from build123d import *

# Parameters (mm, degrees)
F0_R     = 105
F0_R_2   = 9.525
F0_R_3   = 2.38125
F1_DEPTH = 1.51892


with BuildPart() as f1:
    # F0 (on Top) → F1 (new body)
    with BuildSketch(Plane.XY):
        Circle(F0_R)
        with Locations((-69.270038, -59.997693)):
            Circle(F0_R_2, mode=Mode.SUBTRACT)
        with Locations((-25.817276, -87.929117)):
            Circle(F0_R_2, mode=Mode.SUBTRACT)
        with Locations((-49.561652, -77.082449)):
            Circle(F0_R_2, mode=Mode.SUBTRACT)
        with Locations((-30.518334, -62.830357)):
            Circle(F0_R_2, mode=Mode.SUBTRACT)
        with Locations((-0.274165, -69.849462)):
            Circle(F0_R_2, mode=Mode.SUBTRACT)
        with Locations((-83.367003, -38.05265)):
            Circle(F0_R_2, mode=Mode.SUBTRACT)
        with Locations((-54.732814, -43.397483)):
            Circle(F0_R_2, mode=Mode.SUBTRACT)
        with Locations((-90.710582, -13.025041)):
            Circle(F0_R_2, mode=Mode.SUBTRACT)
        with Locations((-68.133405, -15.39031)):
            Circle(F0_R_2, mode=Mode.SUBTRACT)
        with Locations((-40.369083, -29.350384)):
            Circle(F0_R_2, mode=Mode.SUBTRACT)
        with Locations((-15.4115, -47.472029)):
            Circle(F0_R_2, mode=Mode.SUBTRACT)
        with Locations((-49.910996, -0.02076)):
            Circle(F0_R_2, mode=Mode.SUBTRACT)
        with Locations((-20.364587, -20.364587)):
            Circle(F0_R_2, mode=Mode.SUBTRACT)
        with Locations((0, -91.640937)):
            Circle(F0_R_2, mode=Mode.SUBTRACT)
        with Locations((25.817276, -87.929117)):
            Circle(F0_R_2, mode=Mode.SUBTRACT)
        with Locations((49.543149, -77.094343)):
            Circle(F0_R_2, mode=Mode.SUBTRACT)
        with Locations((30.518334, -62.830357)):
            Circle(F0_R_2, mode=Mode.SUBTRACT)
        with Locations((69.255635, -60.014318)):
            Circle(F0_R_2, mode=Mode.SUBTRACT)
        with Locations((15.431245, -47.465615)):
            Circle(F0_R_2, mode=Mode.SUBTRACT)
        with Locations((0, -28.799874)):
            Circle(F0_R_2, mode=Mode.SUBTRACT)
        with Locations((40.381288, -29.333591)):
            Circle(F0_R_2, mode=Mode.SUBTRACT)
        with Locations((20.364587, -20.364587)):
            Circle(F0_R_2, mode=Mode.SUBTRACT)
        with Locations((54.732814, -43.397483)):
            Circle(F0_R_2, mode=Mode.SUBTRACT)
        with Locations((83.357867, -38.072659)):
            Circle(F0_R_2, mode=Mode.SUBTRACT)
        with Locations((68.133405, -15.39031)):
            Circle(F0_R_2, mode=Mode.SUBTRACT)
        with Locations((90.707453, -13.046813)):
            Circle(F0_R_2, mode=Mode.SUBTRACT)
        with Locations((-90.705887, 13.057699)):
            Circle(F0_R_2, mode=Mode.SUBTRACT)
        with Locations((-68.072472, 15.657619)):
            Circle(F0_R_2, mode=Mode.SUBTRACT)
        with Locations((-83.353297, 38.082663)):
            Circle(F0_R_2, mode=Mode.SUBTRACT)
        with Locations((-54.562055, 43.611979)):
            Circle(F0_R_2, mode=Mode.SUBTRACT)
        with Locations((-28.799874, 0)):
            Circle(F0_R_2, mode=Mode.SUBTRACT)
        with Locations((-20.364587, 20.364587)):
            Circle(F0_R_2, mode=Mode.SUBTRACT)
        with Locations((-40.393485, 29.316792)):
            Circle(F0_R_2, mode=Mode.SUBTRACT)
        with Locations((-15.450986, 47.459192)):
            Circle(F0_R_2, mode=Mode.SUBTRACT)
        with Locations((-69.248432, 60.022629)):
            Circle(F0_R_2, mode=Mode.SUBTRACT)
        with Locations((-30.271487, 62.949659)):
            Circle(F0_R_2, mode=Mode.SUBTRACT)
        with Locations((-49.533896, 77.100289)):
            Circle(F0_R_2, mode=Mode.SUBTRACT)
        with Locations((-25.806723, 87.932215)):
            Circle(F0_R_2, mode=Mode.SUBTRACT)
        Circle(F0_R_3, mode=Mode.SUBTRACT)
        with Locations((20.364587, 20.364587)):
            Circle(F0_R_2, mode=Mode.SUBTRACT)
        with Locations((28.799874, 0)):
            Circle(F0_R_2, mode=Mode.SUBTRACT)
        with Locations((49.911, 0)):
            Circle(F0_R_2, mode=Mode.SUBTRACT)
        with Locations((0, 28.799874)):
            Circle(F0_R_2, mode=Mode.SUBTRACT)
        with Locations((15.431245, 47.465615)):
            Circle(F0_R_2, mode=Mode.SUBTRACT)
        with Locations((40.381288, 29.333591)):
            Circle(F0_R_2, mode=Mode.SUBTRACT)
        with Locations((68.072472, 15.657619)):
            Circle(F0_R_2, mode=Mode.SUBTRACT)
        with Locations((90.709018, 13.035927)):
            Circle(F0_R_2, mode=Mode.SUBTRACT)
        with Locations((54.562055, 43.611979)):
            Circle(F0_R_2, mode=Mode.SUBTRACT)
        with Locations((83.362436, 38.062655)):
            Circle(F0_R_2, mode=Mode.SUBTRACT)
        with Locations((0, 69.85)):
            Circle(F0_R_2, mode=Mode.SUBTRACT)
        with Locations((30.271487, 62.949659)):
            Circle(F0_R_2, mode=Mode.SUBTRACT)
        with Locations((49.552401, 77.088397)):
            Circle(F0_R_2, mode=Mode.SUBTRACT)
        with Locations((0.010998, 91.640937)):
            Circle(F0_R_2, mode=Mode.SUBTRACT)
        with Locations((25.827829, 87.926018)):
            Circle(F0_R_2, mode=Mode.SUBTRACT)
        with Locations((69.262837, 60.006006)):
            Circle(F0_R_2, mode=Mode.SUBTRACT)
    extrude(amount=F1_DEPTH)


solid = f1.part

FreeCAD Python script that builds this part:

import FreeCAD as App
import Part
import Sketcher

V = App.Vector
Q = App.Units.Quantity

doc = App.newDocument("Part")
params = doc.addObject("Spreadsheet::Sheet", "Params")
for row, (alias, value) in enumerate([
    ("sketch1_diameter", "0.75 in"),
    ("sketch1_diameter2", "0.1875 in"),
    ("pad1_length", "0.0598 in"),
], start=1):
    params.set(f"A{row}", alias)
    params.set(f"B{row}", "=" + value)
    params.setAlias(f"B{row}", alias)

body = doc.addObject("PartDesign::Body", "Body")

# Sketch on XY plane
sketch1 = body.newObject("Sketcher::SketchObject", "Sketch")
sketch1.AttachmentSupport = (doc.getObject("XY_Plane"), [""])
sketch1.MapMode = "FlatFace"
sketch1.addGeometry([
    Part.Circle(V(0, 0, 0), V(0, 0, 1), 105),  # 0
    Part.Circle(V(-69.270038, -59.997693, 0), V(0, 0, 1), 9.525),  # 1
    Part.Circle(V(-49.561652, -77.082449, 0), V(0, 0, 1), 9.525),  # 2
    Part.Circle(V(-25.817276, -87.929117, 0), V(0, 0, 1), 9.525),  # 3
    Part.Circle(V(-30.518334, -62.830357, 0), V(0, 0, 1), 9.525),  # 4
    Part.Circle(V(-0.274165, -69.849462, 0), V(0, 0, 1), 9.525),  # 5
    Part.Circle(V(-83.367003, -38.05265, 0), V(0, 0, 1), 9.525),  # 6
    Part.Circle(V(-54.732814, -43.397483, 0), V(0, 0, 1), 9.525),  # 7
    Part.Circle(V(-90.710582, -13.025041, 0), V(0, 0, 1), 9.525),  # 8
    Part.Circle(V(-68.133405, -15.39031, 0), V(0, 0, 1), 9.525),  # 9
    Part.Circle(V(-40.369083, -29.350384, 0), V(0, 0, 1), 9.525),  # 10
    Part.Circle(V(-15.4115, -47.472029, 0), V(0, 0, 1), 9.525),  # 11
    Part.Circle(V(-49.910996, -0.02076, 0), V(0, 0, 1), 9.525),  # 12
    Part.Circle(V(-28.799874, 0, 0), V(0, 0, 1), 9.525),  # 13
    Part.Circle(V(-20.364587, -20.364587, 0), V(0, 0, 1), 9.525),  # 14
    Part.Circle(V(0, -91.640937, 0), V(0, 0, 1), 9.525),  # 15
    Part.Circle(V(25.817276, -87.929117, 0), V(0, 0, 1), 9.525),  # 16
    Part.Circle(V(49.543149, -77.094343, 0), V(0, 0, 1), 9.525),  # 17
    Part.Circle(V(30.518334, -62.830357, 0), V(0, 0, 1), 9.525),  # 18
    Part.Circle(V(69.255635, -60.014318, 0), V(0, 0, 1), 9.525),  # 19
    Part.Circle(V(15.431245, -47.465615, 0), V(0, 0, 1), 9.525),  # 20
    Part.Circle(V(0, -28.799874, 0), V(0, 0, 1), 9.525),  # 21
    Part.Circle(V(40.381288, -29.333591, 0), V(0, 0, 1), 9.525),  # 22
    Part.Circle(V(20.364587, -20.364587, 0), V(0, 0, 1), 9.525),  # 23
    Part.Circle(V(0, 0, 0), V(0, 0, 1), 2.38125),  # 24
    Part.Circle(V(28.799874, 0, 0), V(0, 0, 1), 9.525),  # 25
    Part.Circle(V(49.911, 0, 0), V(0, 0, 1), 9.525),  # 26
    Part.Circle(V(54.732814, -43.397483, 0), V(0, 0, 1), 9.525),  # 27
    Part.Circle(V(83.357867, -38.072659, 0), V(0, 0, 1), 9.525),  # 28
    Part.Circle(V(68.133405, -15.39031, 0), V(0, 0, 1), 9.525),  # 29
    Part.Circle(V(90.707453, -13.046813, 0), V(0, 0, 1), 9.525),  # 30
    Part.Circle(V(-90.705887, 13.057699, 0), V(0, 0, 1), 9.525),  # 31
    Part.Circle(V(-68.072472, 15.657619, 0), V(0, 0, 1), 9.525),  # 32
    Part.Circle(V(-83.353297, 38.082663, 0), V(0, 0, 1), 9.525),  # 33
    Part.Circle(V(-54.562055, 43.611979, 0), V(0, 0, 1), 9.525),  # 34
    Part.Circle(V(-20.364587, 20.364587, 0), V(0, 0, 1), 9.525),  # 35
    Part.Circle(V(-40.393485, 29.316792, 0), V(0, 0, 1), 9.525),  # 36
    Part.Circle(V(-15.450986, 47.459192, 0), V(0, 0, 1), 9.525),  # 37
    Part.Circle(V(-69.248432, 60.022629, 0), V(0, 0, 1), 9.525),  # 38
    Part.Circle(V(-30.271487, 62.949659, 0), V(0, 0, 1), 9.525),  # 39
    Part.Circle(V(-49.533896, 77.100289, 0), V(0, 0, 1), 9.525),  # 40
    Part.Circle(V(-25.806723, 87.932215, 0), V(0, 0, 1), 9.525),  # 41
    Part.Circle(V(20.364587, 20.364587, 0), V(0, 0, 1), 9.525),  # 42
    Part.Circle(V(0, 28.799874, 0), V(0, 0, 1), 9.525),  # 43
    Part.Circle(V(15.431245, 47.465615, 0), V(0, 0, 1), 9.525),  # 44
    Part.Circle(V(40.381288, 29.333591, 0), V(0, 0, 1), 9.525),  # 45
    Part.Circle(V(68.072472, 15.657619, 0), V(0, 0, 1), 9.525),  # 46
    Part.Circle(V(90.709018, 13.035927, 0), V(0, 0, 1), 9.525),  # 47
    Part.Circle(V(54.562055, 43.611979, 0), V(0, 0, 1), 9.525),  # 48
    Part.Circle(V(83.362436, 38.062655, 0), V(0, 0, 1), 9.525),  # 49
    Part.Circle(V(0, 69.85, 0), V(0, 0, 1), 9.525),  # 50
    Part.Circle(V(30.271487, 62.949659, 0), V(0, 0, 1), 9.525),  # 51
    Part.Circle(V(0.010998, 91.640937, 0), V(0, 0, 1), 9.525),  # 52
    Part.Circle(V(25.827829, 87.926018, 0), V(0, 0, 1), 9.525),  # 53
    Part.Circle(V(49.552401, 77.088397, 0), V(0, 0, 1), 9.525),  # 54
    Part.Circle(V(69.262837, 60.006006, 0), V(0, 0, 1), 9.525),  # 55
], False)
sketch1.addConstraint([
    Sketcher.Constraint("Coincident", 0, 3, -1, 1),
    Sketcher.Constraint("Coincident", 24, 3, -1, 1),
    Sketcher.Constraint("Equal", 1, 2),
    Sketcher.Constraint("Equal", 2, 3),
    Sketcher.Constraint("Equal", 3, 4),
    Sketcher.Constraint("Equal", 4, 5),
    Sketcher.Constraint("Equal", 5, 6),
    Sketcher.Constraint("Equal", 6, 7),
    Sketcher.Constraint("Equal", 7, 8),
    Sketcher.Constraint("Equal", 8, 9),
    Sketcher.Constraint("Equal", 9, 10),
    Sketcher.Constraint("Equal", 10, 11),
    Sketcher.Constraint("Equal", 11, 12),
    Sketcher.Constraint("Equal", 12, 13),
    Sketcher.Constraint("Equal", 13, 14),
    Sketcher.Constraint("Equal", 14, 15),
    Sketcher.Constraint("Equal", 15, 16),
    Sketcher.Constraint("Equal", 16, 17),
    Sketcher.Constraint("Equal", 17, 18),
    Sketcher.Constraint("Equal", 18, 19),
    Sketcher.Constraint("Equal", 19, 20),
    Sketcher.Constraint("Equal", 20, 21),
    Sketcher.Constraint("Equal", 21, 22),
    Sketcher.Constraint("Equal", 22, 23),
    Sketcher.Constraint("Equal", 23, 25),
    Sketcher.Constraint("Equal", 25, 26),
    Sketcher.Constraint("Equal", 26, 27),
    Sketcher.Constraint("Equal", 27, 28),
    Sketcher.Constraint("Equal", 28, 29),
    Sketcher.Constraint("Equal", 29, 30),
    Sketcher.Constraint("Equal", 30, 31),
    Sketcher.Constraint("Equal", 31, 32),
    Sketcher.Constraint("Equal", 32, 33),
    Sketcher.Constraint("Equal", 33, 34),
    Sketcher.Constraint("Equal", 34, 35),
    Sketcher.Constraint("Equal", 35, 36),
    Sketcher.Constraint("Equal", 36, 37),
    Sketcher.Constraint("Equal", 37, 38),
    Sketcher.Constraint("Equal", 38, 39),
    Sketcher.Constraint("Equal", 39, 40),
    Sketcher.Constraint("Equal", 40, 41),
    Sketcher.Constraint("Equal", 41, 42),
    Sketcher.Constraint("Equal", 42, 43),
    Sketcher.Constraint("Equal", 43, 44),
    Sketcher.Constraint("Equal", 44, 45),
    Sketcher.Constraint("Equal", 45, 46),
    Sketcher.Constraint("Equal", 46, 47),
    Sketcher.Constraint("Equal", 47, 48),
    Sketcher.Constraint("Equal", 48, 49),
    Sketcher.Constraint("Equal", 49, 50),
    Sketcher.Constraint("Equal", 50, 51),
    Sketcher.Constraint("Equal", 51, 52),
    Sketcher.Constraint("Equal", 52, 53),
    Sketcher.Constraint("Equal", 53, 54),
    Sketcher.Constraint("Equal", 54, 55),
    Sketcher.Constraint("Symmetric", 13, 3, 25, 3, -1, 1),
    Sketcher.Constraint("Symmetric", 23, 3, 35, 3, -1, 1),
    Sketcher.Constraint("Symmetric", 14, 3, 42, 3, -1, 1),
    Sketcher.Constraint("Symmetric", 21, 3, 43, 3, -1, 1),
    Sketcher.Constraint("Symmetric", 3, 3, 16, 3, -2),
    Sketcher.Constraint("Symmetric", 4, 3, 18, 3, -2),
    Sketcher.Constraint("Symmetric", 14, 3, 23, 3, -2),
    Sketcher.Constraint("Symmetric", 7, 3, 27, 3, -2),
    Sketcher.Constraint("Symmetric", 9, 3, 29, 3, -2),
    Sketcher.Constraint("Symmetric", 32, 3, 46, 3, -2),
    Sketcher.Constraint("Symmetric", 34, 3, 48, 3, -2),
    Sketcher.Constraint("Symmetric", 39, 3, 51, 3, -2),
    Sketcher.Constraint("Symmetric", 20, 3, 44, 3, -1),
    Sketcher.Constraint("Symmetric", 22, 3, 45, 3, -1),
    Sketcher.Constraint("PointOnObject", 13, 3, -1),
    Sketcher.Constraint("PointOnObject", 15, 3, -2),
    Sketcher.Constraint("PointOnObject", 21, 3, -2),
    Sketcher.Constraint("PointOnObject", 26, 3, -1),
    Sketcher.Constraint("PointOnObject", 50, 3, -2),
    Sketcher.Constraint("Diameter", 1, Q("0.75 in")),
    Sketcher.Constraint("Diameter", 24, Q("0.1875 in")),
    Sketcher.Constraint("Diameter", 0, Q("210 mm")),
    Sketcher.Constraint("DistanceY", -1, 1, 50, 3, Q("2.75 in")),
    Sketcher.Constraint("DistanceX", 12, 3, -1, 1, Q("1.9649998 in")),
    Sketcher.Constraint("DistanceX", -1, 1, 26, 3, Q("1.965 in")),
    Sketcher.Constraint("DistanceX", -1, 1, 19, 3, Q("2.7265998 in")),
    Sketcher.Constraint("DistanceY", 12, 3, 31, 3, Q("0.5149 in")),
    Sketcher.Constraint("DistanceX", 11, 3, -1, 1, Q("15.4115 mm")),
    Sketcher.Constraint("DistanceY", -1, 1, 31, 3, Q("13.057699 mm")),
    Sketcher.Constraint("DistanceX", -1, 1, 52, 3, Q("0.010998 mm")),
    Sketcher.Constraint("DistanceX", -1, 1, 54, 3, Q("49.552401 mm")),
    Sketcher.Constraint("DistanceY", 2, 3, 6, 3, Q("39.029799 mm")),
    Sketcher.Constraint("DistanceX", 6, 3, 9, 3, Q("15.233598 mm")),
    Sketcher.Constraint("DistanceY", 7, 3, 10, 3, Q("14.047099 mm")),
    Sketcher.Constraint("DistanceX", 5, 3, 18, 3, Q("30.792499 mm")),
    Sketcher.Constraint("DistanceX", 18, 3, 19, 3, Q("38.737301 mm")),
    Sketcher.Constraint("DistanceY", 16, 3, 19, 3, Q("27.914799 mm")),
    Sketcher.Constraint("DistanceX", 23, 3, 22, 3, Q("20.016701 mm")),
    Sketcher.Constraint("DistanceX", 32, 3, 13, 3, Q("39.272598 mm")),
    Sketcher.Constraint("DistanceX", 33, 3, 12, 3, Q("33.442301 mm")),
    Sketcher.Constraint("DistanceX", 35, 3, 37, 3, Q("4.913601 mm")),
    Sketcher.Constraint("DistanceX", 36, 3, 37, 3, Q("24.942499 mm")),
    Sketcher.Constraint("DistanceY", 36, 3, 37, 3, Q("18.1424 mm")),
    Sketcher.Constraint("DistanceX", 39, 3, 37, 3, Q("14.820501 mm")),
    Sketcher.Constraint("DistanceX", 55, 3, 49, 3, Q("14.099599 mm")),
    Sketcher.Constraint("DistanceX", 1, 3, -1, 1, Q("69.270038 mm")),
    Sketcher.Constraint("DistanceY", 2, 3, -1, 1, Q("77.082449 mm")),
    Sketcher.Constraint("DistanceY", 8, 3, -1, 1, Q("13.025041 mm")),
    Sketcher.Constraint("DistanceY", 9, 3, -1, 1, Q("15.39031 mm")),
    Sketcher.Constraint("DistanceY", 11, 3, -1, 1, Q("47.472029 mm")),
    Sketcher.Constraint("DistanceX", -1, 1, 17, 3, Q("49.543149 mm")),
    Sketcher.Constraint("DistanceY", 19, 3, -1, 1, Q("60.014318 mm")),
    Sketcher.Constraint("DistanceY", 22, 3, -1, 1, Q("29.333591 mm")),
    Sketcher.Constraint("DistanceY", 28, 3, -1, 1, Q("38.072659 mm")),
    Sketcher.Constraint("DistanceY", -1, 1, 32, 3, Q("15.657619 mm")),
    Sketcher.Constraint("DistanceY", -1, 1, 34, 3, Q("43.611979 mm")),
    Sketcher.Constraint("DistanceY", -1, 1, 36, 3, Q("29.316792 mm")),
    Sketcher.Constraint("DistanceX", 38, 3, -1, 1, Q("69.248432 mm")),
    Sketcher.Constraint("DistanceY", -1, 1, 38, 3, Q("60.022629 mm")),
    Sketcher.Constraint("DistanceY", -1, 1, 39, 3, Q("62.949659 mm")),
    Sketcher.Constraint("DistanceY", -1, 1, 40, 3, Q("77.100289 mm")),
    Sketcher.Constraint("DistanceX", -1, 1, 47, 3, Q("90.709018 mm")),
    Sketcher.Constraint("DistanceX", -1, 1, 53, 3, Q("25.827829 mm")),
    Sketcher.Constraint("DistanceY", -1, 1, 53, 3, Q("87.926018 mm")),
    Sketcher.Constraint("DistanceX", 2, 3, 4, 3, Q("19.043318 mm")),
    Sketcher.Constraint("DistanceY", 2, 3, 4, 3, Q("14.252092 mm")),
    Sketcher.Constraint("DistanceX", 3, 3, 5, 3, Q("25.543111 mm")),
    Sketcher.Constraint("DistanceY", 5, 3, 1, 3, Q("9.851769 mm")),
    Sketcher.Constraint("DistanceX", 6, 3, 2, 3, Q("33.805351 mm")),
    Sketcher.Constraint("DistanceY", 1, 3, 7, 3, Q("16.60021 mm")),
    Sketcher.Constraint("DistanceX", 6, 3, 7, 3, Q("28.634189 mm")),
    Sketcher.Constraint("DistanceX", 8, 3, 6, 3, Q("7.343579 mm")),
    Sketcher.Constraint("DistanceY", 7, 3, 8, 3, Q("30.372442 mm")),
    Sketcher.Constraint("DistanceX", 7, 3, 10, 3, Q("14.363731 mm")),
    Sketcher.Constraint("DistanceX", 12, 3, 13, 3, Q("21.111122 mm")),
    Sketcher.Constraint("DistanceY", 11, 3, 14, 3, Q("27.107442 mm")),
    Sketcher.Constraint("DistanceX", 12, 3, 14, 3, Q("29.546409 mm")),
    Sketcher.Constraint("DistanceY", 15, 3, 3, 3, Q("3.71182 mm")),
    Sketcher.Constraint("DistanceY", 17, 3, 5, 3, Q("7.244881 mm")),
    Sketcher.Constraint("DistanceX", 20, 3, 18, 3, Q("15.087089 mm")),
    Sketcher.Constraint("DistanceY", 20, 3, 21, 3, Q("18.665741 mm")),
    Sketcher.Constraint("DistanceY", 10, 3, 21, 3, Q("0.55051 mm")),
    Sketcher.Constraint("DistanceX", 22, 3, 28, 3, Q("42.976579 mm")),
    Sketcher.Constraint("DistanceX", 29, 3, 30, 3, Q("22.574048 mm")),
    Sketcher.Constraint("DistanceY", 27, 3, 30, 3, Q("30.35067 mm")),
    Sketcher.Constraint("DistanceX", 31, 3, 12, 3, Q("40.794891 mm")),
    Sketcher.Constraint("DistanceX", 33, 3, 34, 3, Q("28.791242 mm")),
    Sketcher.Constraint("DistanceX", 40, 3, 39, 3, Q("19.262409 mm")),
    Sketcher.Constraint("DistanceX", 38, 3, 41, 3, Q("43.441709 mm")),
    Sketcher.Constraint("DistanceY", 30, 3, 47, 3, Q("26.08274 mm")),
    Sketcher.Constraint("DistanceX", 49, 3, 47, 3, Q("7.346582 mm")),
    Sketcher.Constraint("DistanceY", 41, 3, 52, 3, Q("3.708722 mm")),
    Sketcher.Constraint("DistanceY", 44, 3, 52, 3, Q("44.175322 mm")),
    Sketcher.Constraint("DistanceY", 51, 3, 54, 3, Q("14.138738 mm")),
    Sketcher.Constraint("DistanceY", 49, 3, 55, 3, Q("21.943351 mm")),
    Sketcher.Constraint("DistanceY", 55, 3, 54, 3, Q("17.082391 mm")),
    Sketcher.Constraint("DistanceY", -1, 1, 33, 3, Q("38.082663 mm")),
])
sketch1.setExpression("Constraints[74]", "Params.sketch1_diameter")
sketch1.setExpression("Constraints[75]", "Params.sketch1_diameter2")
pad1 = body.newObject("PartDesign::Pad", "Pad")
pad1.Profile = sketch1
pad1.setExpression("Length", "Params.pad1_length")

doc.recompute()
